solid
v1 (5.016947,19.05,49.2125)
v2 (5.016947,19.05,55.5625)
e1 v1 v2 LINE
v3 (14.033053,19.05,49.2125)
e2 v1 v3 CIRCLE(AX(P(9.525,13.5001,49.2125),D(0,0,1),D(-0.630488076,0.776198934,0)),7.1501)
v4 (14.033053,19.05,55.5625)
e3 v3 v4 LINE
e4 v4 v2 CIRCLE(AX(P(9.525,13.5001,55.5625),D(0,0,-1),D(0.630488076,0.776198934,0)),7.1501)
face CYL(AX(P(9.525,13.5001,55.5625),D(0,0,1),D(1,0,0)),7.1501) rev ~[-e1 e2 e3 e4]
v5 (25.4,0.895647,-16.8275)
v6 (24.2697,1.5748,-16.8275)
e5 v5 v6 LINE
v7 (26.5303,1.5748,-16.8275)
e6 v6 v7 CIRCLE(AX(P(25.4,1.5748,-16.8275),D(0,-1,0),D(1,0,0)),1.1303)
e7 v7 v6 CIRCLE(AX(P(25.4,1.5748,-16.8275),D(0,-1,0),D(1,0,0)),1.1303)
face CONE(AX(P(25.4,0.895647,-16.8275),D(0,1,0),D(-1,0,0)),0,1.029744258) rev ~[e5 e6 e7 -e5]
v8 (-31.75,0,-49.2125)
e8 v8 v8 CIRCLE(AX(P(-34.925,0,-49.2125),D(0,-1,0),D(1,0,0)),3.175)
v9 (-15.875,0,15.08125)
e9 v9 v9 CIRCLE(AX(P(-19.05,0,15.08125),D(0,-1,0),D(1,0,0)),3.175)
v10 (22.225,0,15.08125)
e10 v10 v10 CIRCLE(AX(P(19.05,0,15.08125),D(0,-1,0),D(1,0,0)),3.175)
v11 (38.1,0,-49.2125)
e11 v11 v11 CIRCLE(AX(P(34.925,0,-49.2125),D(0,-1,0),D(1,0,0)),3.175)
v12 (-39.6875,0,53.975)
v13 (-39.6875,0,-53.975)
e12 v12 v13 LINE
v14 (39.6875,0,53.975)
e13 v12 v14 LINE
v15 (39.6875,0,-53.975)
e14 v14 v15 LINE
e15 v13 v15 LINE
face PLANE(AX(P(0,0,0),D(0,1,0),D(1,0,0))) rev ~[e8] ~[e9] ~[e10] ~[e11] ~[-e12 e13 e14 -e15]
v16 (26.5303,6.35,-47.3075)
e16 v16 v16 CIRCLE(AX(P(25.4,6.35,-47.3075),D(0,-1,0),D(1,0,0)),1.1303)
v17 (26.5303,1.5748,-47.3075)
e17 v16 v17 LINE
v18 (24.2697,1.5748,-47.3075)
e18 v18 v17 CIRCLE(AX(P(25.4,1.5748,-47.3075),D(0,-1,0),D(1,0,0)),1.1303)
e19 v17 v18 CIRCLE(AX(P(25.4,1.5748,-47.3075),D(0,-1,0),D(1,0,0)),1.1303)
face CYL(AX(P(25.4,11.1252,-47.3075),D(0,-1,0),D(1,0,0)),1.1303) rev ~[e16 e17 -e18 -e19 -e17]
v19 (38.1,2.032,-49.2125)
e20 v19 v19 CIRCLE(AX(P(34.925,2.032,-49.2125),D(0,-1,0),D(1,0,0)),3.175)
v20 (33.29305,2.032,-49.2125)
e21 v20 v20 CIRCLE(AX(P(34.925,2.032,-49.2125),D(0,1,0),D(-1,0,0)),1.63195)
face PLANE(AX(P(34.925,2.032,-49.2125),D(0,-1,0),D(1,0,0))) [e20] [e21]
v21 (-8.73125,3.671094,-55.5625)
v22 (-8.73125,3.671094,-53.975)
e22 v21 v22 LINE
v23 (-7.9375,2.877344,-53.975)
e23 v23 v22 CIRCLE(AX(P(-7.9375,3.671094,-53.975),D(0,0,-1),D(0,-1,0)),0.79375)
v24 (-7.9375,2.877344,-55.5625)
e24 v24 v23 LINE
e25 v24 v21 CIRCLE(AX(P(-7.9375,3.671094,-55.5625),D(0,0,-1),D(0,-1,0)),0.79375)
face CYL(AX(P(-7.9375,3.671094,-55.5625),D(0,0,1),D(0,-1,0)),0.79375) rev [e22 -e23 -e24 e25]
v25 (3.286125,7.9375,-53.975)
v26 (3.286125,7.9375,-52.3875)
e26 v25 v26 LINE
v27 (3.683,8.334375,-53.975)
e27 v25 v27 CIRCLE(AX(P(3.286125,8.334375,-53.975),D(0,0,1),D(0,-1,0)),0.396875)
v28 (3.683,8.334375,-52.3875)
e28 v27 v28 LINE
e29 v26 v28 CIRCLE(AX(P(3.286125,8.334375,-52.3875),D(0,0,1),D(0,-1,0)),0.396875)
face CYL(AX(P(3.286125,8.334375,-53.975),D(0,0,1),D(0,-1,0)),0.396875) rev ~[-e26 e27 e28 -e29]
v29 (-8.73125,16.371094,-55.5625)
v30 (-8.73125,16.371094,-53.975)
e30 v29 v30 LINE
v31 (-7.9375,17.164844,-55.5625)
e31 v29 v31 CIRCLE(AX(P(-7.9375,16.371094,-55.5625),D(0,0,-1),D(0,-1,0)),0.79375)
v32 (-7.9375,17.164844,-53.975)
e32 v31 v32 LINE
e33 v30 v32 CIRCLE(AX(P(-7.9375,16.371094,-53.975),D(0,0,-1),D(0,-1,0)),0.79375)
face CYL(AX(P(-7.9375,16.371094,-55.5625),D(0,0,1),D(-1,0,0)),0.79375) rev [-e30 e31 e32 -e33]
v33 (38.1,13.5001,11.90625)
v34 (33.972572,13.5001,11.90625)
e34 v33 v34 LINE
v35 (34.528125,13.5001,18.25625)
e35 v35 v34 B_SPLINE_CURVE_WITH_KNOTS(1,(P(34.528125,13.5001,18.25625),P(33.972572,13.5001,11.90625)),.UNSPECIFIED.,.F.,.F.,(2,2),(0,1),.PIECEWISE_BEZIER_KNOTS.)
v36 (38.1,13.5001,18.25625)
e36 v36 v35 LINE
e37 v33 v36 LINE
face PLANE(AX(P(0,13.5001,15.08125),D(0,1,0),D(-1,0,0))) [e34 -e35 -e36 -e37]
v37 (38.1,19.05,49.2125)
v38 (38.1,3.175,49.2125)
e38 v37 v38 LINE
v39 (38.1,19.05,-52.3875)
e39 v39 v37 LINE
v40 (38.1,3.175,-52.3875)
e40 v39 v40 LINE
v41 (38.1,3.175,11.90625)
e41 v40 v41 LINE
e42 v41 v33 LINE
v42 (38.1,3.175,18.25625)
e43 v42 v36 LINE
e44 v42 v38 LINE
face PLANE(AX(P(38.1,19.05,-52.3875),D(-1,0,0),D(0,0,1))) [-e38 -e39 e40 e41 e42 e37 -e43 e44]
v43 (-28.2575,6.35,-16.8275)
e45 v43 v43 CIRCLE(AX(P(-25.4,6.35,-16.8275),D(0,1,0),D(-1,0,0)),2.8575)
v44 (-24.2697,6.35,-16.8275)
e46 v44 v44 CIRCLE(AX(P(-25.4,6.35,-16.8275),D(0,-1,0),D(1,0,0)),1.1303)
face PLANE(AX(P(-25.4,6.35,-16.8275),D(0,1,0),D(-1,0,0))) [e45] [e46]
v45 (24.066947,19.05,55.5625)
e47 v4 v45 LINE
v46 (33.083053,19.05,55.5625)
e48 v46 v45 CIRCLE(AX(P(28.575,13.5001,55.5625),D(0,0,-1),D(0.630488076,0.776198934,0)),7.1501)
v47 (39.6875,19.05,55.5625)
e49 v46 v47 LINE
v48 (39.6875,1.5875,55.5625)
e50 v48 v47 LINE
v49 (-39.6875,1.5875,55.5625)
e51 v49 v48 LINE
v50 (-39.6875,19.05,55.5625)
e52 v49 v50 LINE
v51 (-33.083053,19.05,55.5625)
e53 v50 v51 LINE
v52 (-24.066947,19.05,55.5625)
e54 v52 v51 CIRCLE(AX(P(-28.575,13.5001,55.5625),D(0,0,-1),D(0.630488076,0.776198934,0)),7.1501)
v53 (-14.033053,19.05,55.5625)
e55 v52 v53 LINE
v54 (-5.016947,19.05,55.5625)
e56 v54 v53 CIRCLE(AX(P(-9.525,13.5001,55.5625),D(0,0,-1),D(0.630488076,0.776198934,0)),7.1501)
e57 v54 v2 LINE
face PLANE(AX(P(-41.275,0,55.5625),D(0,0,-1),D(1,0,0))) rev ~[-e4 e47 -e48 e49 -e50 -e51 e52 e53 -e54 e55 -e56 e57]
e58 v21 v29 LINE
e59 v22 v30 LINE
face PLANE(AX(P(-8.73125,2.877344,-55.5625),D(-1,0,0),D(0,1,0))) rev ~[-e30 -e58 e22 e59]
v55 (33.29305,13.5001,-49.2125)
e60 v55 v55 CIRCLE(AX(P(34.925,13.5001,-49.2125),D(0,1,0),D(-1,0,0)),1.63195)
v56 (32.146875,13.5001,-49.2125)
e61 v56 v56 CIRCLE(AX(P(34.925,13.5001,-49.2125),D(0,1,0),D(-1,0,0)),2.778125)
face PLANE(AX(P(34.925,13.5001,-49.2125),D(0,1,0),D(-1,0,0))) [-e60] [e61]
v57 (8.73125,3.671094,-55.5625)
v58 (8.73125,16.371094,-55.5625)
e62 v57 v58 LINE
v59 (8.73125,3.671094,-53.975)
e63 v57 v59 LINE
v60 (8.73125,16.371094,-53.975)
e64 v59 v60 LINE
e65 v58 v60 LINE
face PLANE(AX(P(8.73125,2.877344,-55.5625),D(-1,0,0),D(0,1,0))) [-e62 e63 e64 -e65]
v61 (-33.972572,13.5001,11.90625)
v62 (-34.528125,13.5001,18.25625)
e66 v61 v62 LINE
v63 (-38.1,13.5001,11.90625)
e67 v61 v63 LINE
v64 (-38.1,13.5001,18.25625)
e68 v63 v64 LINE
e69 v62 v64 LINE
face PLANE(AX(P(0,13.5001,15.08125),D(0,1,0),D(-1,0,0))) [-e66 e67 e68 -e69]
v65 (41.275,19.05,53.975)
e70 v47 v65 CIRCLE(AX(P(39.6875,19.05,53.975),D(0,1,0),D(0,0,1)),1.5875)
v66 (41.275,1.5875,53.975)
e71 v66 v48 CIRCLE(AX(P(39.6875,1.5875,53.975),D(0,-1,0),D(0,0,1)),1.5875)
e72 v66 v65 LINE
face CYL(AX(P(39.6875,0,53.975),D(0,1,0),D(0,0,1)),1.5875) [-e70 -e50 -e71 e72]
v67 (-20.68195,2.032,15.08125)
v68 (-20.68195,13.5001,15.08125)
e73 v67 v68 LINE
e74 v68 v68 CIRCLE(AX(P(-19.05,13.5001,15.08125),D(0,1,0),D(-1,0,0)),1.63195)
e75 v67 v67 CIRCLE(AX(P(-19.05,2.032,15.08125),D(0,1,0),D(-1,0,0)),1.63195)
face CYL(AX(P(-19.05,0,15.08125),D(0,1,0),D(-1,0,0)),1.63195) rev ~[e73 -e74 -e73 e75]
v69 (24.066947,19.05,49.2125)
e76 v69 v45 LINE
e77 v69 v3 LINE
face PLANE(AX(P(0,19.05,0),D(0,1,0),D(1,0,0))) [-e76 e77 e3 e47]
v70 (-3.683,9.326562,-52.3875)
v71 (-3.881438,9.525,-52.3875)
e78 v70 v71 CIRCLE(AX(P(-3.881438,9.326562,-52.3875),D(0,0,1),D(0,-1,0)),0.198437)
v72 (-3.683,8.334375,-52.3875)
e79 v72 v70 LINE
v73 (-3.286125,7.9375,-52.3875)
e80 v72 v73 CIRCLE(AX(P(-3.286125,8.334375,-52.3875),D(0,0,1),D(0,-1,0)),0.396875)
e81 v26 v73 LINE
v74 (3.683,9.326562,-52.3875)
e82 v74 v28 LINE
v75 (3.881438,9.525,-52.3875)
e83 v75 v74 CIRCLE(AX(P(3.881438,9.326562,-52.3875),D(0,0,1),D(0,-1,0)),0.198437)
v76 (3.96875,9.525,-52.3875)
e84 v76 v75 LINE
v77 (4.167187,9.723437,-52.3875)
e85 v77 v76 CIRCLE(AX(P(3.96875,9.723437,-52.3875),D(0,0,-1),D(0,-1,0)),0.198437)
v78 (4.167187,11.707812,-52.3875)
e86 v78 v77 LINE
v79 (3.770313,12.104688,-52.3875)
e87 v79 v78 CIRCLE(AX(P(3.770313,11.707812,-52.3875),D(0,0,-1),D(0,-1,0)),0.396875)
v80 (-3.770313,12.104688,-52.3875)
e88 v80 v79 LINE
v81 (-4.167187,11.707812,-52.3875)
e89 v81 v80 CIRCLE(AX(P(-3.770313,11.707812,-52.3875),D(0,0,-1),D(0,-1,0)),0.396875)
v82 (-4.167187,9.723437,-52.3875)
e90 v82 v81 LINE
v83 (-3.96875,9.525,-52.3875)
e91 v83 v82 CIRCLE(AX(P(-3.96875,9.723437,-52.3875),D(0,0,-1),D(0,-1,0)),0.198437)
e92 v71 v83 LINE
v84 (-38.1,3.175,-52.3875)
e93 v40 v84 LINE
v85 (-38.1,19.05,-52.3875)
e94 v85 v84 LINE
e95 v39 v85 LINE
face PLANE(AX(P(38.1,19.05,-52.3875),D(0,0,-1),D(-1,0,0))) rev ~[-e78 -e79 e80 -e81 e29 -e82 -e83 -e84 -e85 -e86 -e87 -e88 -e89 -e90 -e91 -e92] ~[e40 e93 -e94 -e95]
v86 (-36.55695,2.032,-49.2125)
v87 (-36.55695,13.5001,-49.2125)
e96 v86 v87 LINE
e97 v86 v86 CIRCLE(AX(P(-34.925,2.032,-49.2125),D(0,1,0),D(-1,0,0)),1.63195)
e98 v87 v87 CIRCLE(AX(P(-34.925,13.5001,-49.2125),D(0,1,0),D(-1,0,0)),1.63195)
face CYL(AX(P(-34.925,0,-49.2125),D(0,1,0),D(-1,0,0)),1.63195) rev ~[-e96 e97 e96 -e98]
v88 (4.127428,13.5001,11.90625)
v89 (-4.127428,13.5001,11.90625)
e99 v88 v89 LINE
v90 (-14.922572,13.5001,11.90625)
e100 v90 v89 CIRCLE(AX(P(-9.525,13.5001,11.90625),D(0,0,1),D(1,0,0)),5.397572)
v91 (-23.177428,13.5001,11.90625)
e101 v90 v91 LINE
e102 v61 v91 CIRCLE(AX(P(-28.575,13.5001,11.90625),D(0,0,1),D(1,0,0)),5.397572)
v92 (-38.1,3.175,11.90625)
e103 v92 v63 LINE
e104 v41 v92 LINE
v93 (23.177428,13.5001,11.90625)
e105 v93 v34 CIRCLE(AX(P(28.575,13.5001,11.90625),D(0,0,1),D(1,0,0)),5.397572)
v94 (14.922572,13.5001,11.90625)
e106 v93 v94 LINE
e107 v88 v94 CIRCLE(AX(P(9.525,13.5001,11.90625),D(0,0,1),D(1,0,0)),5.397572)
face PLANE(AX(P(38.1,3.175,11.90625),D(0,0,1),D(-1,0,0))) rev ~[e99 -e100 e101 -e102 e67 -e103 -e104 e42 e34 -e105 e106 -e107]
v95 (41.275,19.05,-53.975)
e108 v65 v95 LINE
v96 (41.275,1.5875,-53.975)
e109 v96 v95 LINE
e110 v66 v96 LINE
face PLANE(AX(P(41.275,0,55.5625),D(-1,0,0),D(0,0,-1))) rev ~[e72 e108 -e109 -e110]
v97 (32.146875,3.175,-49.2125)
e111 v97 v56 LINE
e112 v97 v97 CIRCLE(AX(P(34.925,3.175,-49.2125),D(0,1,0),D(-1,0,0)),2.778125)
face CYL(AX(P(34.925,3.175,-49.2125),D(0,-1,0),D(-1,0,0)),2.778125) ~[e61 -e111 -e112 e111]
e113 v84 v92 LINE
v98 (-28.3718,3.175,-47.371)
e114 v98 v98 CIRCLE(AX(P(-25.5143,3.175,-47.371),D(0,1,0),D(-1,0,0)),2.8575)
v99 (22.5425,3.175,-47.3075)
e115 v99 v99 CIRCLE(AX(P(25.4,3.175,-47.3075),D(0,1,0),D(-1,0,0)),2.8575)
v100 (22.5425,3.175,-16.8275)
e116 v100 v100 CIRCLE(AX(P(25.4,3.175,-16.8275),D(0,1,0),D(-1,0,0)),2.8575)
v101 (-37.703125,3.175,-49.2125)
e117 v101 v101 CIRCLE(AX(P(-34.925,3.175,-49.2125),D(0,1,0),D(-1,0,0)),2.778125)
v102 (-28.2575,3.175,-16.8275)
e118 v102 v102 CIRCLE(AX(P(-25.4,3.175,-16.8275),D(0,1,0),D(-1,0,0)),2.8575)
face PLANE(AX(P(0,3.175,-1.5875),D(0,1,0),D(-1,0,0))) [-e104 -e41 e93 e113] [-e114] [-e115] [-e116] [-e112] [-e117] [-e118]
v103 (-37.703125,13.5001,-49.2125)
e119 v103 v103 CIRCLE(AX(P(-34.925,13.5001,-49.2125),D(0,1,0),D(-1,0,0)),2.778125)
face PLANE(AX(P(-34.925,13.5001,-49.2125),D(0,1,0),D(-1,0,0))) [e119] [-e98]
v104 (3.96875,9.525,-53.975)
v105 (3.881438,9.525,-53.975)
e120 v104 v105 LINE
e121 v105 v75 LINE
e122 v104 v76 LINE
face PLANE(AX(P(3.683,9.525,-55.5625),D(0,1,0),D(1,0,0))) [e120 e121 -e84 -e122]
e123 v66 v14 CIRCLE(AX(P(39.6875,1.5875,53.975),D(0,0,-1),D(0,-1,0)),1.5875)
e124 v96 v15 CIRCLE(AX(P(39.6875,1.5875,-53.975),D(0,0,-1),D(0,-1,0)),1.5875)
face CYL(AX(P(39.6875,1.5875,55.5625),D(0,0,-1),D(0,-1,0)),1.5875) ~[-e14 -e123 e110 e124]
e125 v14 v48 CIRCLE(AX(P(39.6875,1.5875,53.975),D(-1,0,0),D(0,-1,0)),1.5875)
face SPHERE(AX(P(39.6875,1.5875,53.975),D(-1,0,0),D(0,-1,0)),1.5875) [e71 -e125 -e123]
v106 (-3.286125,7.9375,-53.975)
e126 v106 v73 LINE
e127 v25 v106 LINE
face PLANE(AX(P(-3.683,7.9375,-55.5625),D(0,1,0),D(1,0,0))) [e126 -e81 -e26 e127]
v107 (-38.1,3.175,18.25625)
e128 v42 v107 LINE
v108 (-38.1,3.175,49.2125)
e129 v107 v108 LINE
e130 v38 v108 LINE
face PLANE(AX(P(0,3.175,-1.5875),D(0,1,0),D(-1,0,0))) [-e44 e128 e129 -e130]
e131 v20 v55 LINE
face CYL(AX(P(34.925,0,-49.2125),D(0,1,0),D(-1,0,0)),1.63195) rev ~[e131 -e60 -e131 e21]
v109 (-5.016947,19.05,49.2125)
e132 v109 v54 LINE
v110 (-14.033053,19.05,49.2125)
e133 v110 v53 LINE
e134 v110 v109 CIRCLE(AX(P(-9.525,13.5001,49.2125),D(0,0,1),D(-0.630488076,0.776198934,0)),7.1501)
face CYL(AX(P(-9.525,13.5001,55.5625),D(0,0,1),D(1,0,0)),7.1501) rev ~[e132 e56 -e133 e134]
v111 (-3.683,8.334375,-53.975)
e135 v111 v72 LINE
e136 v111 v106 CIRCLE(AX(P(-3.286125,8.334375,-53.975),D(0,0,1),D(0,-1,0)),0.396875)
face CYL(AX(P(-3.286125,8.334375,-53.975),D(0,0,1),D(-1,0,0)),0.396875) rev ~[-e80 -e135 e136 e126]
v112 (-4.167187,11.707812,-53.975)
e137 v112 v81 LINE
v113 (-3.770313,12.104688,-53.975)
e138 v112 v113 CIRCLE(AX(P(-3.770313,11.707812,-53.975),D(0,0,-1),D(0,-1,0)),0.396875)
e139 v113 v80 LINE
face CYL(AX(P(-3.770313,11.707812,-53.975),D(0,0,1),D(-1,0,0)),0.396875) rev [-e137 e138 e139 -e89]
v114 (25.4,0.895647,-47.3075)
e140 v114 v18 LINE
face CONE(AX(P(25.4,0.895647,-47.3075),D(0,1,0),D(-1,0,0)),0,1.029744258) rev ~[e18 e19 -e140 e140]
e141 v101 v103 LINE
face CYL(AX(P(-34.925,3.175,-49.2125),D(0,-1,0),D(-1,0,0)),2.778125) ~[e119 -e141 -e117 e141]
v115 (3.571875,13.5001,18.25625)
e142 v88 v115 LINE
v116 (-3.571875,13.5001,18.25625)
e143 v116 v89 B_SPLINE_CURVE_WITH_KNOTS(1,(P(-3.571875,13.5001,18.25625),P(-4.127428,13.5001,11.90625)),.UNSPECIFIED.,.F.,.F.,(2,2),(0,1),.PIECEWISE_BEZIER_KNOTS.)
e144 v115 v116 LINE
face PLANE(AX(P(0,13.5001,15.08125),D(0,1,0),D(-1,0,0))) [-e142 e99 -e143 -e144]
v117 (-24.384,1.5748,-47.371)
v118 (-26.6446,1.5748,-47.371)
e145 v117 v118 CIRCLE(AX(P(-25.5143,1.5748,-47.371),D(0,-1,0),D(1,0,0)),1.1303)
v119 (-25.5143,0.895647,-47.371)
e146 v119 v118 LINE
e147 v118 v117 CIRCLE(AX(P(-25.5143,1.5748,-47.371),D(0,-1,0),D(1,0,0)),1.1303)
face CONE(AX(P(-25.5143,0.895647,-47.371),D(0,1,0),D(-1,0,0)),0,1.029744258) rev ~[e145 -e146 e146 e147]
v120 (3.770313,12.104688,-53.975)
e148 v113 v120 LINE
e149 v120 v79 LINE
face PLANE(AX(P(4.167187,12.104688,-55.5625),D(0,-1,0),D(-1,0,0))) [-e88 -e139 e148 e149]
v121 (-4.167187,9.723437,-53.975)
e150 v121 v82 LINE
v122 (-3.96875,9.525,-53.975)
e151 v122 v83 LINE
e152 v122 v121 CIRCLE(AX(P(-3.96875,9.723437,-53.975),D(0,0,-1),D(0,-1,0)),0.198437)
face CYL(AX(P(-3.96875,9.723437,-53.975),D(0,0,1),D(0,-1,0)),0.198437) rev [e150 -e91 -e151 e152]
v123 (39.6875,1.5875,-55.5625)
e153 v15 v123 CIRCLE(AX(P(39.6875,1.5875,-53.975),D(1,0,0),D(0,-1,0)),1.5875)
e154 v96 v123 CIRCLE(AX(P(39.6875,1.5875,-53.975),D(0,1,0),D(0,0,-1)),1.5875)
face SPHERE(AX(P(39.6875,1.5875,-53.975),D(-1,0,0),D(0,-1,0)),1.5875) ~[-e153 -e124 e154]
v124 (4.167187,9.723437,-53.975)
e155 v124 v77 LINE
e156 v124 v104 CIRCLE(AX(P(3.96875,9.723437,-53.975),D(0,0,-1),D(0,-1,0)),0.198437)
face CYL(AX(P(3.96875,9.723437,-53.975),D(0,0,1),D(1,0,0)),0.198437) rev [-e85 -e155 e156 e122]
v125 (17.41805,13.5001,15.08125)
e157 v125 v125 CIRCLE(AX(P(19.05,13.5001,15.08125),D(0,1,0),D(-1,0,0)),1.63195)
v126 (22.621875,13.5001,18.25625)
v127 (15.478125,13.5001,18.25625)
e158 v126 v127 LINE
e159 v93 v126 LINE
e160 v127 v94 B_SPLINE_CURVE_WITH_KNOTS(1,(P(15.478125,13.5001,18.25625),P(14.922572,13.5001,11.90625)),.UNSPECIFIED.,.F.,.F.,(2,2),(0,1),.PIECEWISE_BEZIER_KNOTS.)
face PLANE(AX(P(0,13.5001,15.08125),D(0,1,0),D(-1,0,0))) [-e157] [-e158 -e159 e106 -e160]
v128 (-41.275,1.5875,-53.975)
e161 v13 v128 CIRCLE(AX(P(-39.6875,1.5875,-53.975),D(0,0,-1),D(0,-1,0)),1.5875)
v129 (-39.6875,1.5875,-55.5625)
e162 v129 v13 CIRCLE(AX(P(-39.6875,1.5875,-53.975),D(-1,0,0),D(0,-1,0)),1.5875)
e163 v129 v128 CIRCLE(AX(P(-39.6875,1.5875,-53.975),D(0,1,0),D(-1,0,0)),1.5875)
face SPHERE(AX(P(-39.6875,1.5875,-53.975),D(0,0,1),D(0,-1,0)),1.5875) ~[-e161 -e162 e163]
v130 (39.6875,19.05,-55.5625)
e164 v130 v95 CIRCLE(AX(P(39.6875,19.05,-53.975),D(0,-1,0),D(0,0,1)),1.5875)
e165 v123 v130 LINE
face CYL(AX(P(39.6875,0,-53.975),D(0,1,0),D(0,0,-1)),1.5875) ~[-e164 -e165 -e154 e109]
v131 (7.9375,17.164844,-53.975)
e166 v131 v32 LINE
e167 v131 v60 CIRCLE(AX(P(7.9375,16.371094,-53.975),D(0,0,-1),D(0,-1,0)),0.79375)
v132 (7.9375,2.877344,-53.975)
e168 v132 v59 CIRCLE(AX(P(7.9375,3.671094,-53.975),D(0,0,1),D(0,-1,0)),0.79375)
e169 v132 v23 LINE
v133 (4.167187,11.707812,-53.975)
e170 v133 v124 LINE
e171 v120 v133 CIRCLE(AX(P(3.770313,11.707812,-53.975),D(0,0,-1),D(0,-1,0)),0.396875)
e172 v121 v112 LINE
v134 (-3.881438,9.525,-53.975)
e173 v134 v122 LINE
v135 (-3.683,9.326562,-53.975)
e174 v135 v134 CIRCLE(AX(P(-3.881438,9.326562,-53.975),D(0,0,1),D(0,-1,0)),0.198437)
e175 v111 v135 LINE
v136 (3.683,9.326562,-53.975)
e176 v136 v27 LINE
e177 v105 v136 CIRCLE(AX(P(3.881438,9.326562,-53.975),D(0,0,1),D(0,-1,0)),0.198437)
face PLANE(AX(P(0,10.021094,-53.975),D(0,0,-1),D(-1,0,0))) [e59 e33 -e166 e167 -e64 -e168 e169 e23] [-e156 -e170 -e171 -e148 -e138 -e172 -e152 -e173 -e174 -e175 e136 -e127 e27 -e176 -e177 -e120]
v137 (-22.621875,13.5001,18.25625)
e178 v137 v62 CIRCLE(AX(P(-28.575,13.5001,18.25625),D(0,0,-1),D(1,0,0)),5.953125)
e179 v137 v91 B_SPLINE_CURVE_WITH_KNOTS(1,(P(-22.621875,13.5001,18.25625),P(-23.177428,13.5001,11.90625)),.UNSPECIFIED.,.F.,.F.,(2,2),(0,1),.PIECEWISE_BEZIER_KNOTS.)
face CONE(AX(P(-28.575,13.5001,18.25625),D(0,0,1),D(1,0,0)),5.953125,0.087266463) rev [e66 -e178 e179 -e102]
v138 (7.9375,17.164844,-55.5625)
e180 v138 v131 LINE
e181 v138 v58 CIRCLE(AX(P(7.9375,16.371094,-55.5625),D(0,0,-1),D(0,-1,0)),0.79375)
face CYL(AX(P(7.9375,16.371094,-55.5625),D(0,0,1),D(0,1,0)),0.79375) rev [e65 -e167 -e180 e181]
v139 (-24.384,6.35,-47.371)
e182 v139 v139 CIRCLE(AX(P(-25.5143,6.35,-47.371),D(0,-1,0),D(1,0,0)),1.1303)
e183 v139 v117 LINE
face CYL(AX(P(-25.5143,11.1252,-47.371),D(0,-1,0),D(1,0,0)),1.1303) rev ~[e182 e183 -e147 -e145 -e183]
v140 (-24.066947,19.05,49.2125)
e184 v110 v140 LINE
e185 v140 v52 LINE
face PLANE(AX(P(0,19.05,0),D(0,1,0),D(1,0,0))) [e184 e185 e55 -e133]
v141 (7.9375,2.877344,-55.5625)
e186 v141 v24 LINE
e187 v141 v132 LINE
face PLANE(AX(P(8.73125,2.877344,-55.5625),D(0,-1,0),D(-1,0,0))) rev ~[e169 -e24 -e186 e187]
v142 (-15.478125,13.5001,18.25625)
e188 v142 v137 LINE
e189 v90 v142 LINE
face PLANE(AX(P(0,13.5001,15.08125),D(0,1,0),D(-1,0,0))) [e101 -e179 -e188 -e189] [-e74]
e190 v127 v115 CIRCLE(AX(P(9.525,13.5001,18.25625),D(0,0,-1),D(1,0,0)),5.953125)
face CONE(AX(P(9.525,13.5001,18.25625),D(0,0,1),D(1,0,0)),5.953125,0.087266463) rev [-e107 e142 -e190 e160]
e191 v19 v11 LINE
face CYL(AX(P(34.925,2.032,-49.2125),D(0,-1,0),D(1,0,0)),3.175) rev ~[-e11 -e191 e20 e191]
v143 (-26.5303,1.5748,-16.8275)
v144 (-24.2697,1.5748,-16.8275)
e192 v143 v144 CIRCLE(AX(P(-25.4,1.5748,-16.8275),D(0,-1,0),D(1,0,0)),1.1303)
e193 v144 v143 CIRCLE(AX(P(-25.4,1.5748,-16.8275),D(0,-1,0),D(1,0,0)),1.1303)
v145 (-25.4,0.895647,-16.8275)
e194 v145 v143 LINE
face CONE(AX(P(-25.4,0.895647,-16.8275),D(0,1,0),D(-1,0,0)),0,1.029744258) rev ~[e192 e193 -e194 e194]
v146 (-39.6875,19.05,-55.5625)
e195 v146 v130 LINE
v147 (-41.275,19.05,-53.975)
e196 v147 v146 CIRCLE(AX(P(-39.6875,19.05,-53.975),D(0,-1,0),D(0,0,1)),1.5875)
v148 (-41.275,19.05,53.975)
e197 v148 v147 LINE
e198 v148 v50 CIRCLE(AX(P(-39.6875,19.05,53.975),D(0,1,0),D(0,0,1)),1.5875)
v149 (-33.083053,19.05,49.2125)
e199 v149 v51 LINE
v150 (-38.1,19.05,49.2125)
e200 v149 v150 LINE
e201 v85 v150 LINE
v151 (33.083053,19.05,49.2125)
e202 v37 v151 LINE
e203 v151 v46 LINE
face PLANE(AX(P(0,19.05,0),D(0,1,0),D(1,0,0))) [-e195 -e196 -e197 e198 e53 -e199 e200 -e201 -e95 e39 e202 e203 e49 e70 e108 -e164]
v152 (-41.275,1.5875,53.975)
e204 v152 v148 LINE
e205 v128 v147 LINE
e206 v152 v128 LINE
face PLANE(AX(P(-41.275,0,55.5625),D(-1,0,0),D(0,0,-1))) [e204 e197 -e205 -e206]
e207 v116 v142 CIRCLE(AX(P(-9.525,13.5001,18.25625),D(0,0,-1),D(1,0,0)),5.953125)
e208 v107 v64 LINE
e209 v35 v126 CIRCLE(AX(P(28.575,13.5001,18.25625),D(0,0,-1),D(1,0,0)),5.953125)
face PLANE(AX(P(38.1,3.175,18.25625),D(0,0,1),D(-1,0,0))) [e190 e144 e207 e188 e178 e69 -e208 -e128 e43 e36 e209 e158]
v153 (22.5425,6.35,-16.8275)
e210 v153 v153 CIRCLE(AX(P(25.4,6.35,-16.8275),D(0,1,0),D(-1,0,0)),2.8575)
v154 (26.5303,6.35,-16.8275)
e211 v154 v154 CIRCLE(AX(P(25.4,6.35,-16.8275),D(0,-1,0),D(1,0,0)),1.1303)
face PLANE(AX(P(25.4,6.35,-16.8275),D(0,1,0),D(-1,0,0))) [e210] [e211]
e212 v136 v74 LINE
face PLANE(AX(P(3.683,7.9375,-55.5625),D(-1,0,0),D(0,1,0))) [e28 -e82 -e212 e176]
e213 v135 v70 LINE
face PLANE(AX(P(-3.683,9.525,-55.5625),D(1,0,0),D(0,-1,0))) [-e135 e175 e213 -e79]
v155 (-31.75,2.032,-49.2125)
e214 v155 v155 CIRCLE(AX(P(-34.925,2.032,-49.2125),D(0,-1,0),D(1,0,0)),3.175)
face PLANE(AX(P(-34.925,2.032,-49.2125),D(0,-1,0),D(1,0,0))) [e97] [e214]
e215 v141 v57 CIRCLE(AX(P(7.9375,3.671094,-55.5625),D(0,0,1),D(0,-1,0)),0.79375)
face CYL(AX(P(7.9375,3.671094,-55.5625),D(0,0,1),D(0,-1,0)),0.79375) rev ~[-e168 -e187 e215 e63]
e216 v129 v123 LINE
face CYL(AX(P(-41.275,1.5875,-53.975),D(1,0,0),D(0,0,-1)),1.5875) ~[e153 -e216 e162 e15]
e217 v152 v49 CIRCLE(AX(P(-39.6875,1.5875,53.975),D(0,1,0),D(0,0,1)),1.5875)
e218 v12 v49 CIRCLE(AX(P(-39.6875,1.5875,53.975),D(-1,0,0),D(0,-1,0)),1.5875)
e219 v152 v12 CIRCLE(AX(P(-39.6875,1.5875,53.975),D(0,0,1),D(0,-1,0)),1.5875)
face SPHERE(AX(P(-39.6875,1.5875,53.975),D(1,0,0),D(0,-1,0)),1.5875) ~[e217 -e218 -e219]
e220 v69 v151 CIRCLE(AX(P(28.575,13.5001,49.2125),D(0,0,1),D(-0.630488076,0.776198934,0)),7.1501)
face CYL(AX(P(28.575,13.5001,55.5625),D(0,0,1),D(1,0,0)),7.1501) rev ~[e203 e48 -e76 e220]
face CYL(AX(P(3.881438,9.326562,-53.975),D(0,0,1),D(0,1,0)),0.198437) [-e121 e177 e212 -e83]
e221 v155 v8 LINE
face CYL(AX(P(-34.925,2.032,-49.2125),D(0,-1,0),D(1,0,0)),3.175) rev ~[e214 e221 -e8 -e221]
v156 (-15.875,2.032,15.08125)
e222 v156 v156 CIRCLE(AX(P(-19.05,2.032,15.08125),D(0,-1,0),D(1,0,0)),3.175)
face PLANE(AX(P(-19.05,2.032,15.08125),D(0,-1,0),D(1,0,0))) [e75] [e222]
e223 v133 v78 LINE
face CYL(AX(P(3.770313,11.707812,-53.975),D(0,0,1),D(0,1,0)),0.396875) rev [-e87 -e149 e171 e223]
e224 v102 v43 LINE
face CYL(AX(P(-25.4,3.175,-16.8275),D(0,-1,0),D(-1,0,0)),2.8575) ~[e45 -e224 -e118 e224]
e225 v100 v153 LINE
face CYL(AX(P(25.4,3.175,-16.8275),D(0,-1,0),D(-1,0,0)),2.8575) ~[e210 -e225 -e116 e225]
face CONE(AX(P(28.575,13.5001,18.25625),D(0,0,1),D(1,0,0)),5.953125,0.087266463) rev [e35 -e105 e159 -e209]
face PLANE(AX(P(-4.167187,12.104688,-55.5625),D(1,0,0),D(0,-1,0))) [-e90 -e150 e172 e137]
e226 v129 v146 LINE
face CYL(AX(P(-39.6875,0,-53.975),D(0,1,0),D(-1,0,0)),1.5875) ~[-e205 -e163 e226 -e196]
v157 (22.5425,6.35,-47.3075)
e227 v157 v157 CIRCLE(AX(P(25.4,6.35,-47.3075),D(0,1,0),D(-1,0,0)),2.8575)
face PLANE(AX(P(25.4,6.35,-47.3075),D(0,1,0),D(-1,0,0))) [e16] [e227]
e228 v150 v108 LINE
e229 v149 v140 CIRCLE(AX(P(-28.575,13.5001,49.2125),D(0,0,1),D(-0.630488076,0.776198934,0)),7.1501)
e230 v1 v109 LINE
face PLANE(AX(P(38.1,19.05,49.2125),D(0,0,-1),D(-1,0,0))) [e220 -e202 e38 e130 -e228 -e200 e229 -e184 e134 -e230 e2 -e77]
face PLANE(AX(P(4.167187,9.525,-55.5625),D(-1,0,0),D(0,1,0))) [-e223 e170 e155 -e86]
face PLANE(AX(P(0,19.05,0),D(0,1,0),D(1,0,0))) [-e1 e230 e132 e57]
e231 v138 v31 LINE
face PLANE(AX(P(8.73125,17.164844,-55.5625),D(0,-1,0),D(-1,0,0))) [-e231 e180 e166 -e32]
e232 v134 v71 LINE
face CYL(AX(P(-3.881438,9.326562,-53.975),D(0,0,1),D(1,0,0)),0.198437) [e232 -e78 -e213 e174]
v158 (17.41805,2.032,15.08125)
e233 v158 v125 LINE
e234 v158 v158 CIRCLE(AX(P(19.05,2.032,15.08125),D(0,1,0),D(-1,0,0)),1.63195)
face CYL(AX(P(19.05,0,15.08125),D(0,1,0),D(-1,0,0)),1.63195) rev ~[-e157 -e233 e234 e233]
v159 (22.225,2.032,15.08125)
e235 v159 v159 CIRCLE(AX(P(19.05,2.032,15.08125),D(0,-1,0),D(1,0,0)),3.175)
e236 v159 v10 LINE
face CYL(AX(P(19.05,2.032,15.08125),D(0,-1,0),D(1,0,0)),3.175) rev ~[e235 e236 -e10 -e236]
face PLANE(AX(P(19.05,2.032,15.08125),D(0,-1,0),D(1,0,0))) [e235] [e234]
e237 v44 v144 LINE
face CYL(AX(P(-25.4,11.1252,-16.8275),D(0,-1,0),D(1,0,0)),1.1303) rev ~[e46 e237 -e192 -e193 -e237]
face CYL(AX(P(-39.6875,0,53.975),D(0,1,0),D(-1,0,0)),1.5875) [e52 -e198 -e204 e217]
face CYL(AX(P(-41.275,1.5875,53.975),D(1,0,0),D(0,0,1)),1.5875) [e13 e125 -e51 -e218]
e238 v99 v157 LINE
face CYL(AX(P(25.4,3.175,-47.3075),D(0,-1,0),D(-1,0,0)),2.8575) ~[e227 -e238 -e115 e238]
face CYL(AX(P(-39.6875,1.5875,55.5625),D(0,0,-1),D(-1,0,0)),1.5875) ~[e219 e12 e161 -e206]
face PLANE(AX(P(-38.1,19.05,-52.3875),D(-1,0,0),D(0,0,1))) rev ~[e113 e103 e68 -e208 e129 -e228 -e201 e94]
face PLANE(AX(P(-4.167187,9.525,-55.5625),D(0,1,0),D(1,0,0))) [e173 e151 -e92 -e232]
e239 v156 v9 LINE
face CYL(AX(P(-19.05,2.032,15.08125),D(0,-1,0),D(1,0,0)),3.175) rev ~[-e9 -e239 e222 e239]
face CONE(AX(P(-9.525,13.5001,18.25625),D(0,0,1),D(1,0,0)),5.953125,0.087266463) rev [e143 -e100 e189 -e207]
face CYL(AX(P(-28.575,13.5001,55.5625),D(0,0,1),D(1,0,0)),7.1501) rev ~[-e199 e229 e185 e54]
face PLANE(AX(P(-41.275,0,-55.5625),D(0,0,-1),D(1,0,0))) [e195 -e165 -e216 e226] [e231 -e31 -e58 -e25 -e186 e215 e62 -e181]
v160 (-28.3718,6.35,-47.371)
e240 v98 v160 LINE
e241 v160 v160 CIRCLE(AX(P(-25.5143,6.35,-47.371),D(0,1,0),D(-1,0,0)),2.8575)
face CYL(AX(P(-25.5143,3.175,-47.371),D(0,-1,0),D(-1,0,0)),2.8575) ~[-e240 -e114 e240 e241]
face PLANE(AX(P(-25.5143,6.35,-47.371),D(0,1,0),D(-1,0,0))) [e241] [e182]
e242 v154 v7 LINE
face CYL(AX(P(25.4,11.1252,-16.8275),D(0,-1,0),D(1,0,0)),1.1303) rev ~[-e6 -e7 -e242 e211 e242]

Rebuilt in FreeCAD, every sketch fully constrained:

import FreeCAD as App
import Part
import Sketcher
Q = App.Units.Quantity


def edges_at(feature, points):
    """Names of the edges that pass closest to the given points."""
    edges = feature.Shape.Edges
    near = lambda p: min(range(len(edges)), key=lambda i: edges[i].distToShape(Part.Vertex(*p))[0])
    return sorted({f"Edge{near(p) + 1}" for p in points})

doc = App.newDocument("Part")
body = doc.addObject("PartDesign::Body", "Body")

# Sketch on XZ plane
sketch1 = doc.addObject("Sketcher::SketchObject", "Sketch")
body.addObject(sketch1)
sketch1.AttachmentSupport = (doc.XZ_Plane, [""])
sketch1.MapMode = "FlatFace"
sketch1.addGeometry([
    Part.LineSegment(App.Vector(-41, -56, 0), App.Vector(-41, 56, 0)),
    Part.LineSegment(App.Vector(-41, 56, 0), App.Vector(41, 56, 0)),
    Part.LineSegment(App.Vector(41, 56, 0), App.Vector(41, -56, 0)),
    Part.LineSegment(App.Vector(41, -56, 0), App.Vector(-41, -56, 0)),
], False)
sketch1.addConstraint([
    Sketcher.Constraint("Coincident", 0, 2, 1, 1),
    Sketcher.Constraint("Coincident", 1, 2, 2, 1),
    Sketcher.Constraint("Coincident", 2, 2, 3, 1),
    Sketcher.Constraint("Coincident", 3, 2, 0, 1),
    Sketcher.Constraint("Vertical", 0),
    Sketcher.Constraint("Horizontal", 1),
    Sketcher.Constraint("Vertical", 2),
    Sketcher.Constraint("Horizontal", 3),
    Sketcher.Constraint("Symmetric", 0, 2, 2, 2, -1, 1),
    Sketcher.Constraint("DistanceX", 1, 1, 1, 2, Q("3.25 in")),
    Sketcher.Constraint("DistanceY", 0, 1, 0, 2, Q("4.375 in")),
])
pad1 = doc.addObject("PartDesign::Pad", "Pad")
body.addObject(pad1)
pad1.Profile = sketch1
pad1.Length = Q("0.75 in")
pad1.Reversed = True

# Sketch on XZ plane
sketch2 = doc.addObject("Sketcher::SketchObject", "Sketch001")
body.addObject(sketch2)
sketch2.AttachmentSupport = (doc.XZ_Plane, [""])
sketch2.MapMode = "FlatFace"
sketch2.AttachmentOffset = App.Placement(App.Vector(0, 0, -0.75 * 25.4), App.Rotation())
sketch2.addGeometry([
    Part.LineSegment(App.Vector(38, 49, 0), App.Vector(38, -52, 0)),
    Part.LineSegment(App.Vector(38, -52, 0), App.Vector(-38, -52, 0)),
    Part.LineSegment(App.Vector(-38, -52, 0), App.Vector(-38, 49, 0)),
    Part.LineSegment(App.Vector(-38, 49, 0), App.Vector(38, 49, 0)),
], False)
sketch2.addConstraint([
    Sketcher.Constraint("Coincident", 0, 2, 1, 1),
    Sketcher.Constraint("Coincident", 1, 2, 2, 1),
    Sketcher.Constraint("Coincident", 2, 2, 3, 1),
    Sketcher.Constraint("Coincident", 3, 2, 0, 1),
    Sketcher.Constraint("Vertical", 0),
    Sketcher.Constraint("Horizontal", 1),
    Sketcher.Constraint("Vertical", 2),
    Sketcher.Constraint("Horizontal", 3),
    Sketcher.Constraint("DistanceX", 1, 2, 1, 1, Q("3 in")),
    Sketcher.Constraint("DistanceY", 0, 2, 0, 1, Q("4 in")),
    Sketcher.Constraint("DistanceX", -1, 1, 0, 2, Q("1.5 in")),
    Sketcher.Constraint("DistanceY", 0, 2, -1, 1, Q("2.0625 in")),
])
pocket1 = doc.addObject("PartDesign::Pocket", "Pocket")
body.addObject(pocket1)
pocket1.Profile = sketch2
pocket1.Length = Q("0.625 in")
pocket1.Reversed = True

# Sketch on XY plane
sketch3 = doc.addObject("Sketcher::SketchObject", "Sketch002")
body.addObject(sketch3)
sketch3.AttachmentSupport = (doc.XY_Plane, [""])
sketch3.MapMode = "FlatFace"
sketch3.AttachmentOffset = App.Placement(App.Vector(0, 0, 2.1875 * 25.4), App.Rotation())
sketch3.addGeometry(Part.Circle(App.Vector(-29, 14, 0), App.Vector(0, 0, 1), 7), False)
sketch3.addConstraint([
    Sketcher.Constraint("Diameter", 0, Q("0.563 in")),
    Sketcher.Constraint("DistanceX", 0, 3, -1, 1, Q("1.125 in")),
    Sketcher.Constraint("DistanceY", -1, 1, 0, 3, Q("0.5315 in")),
])
pocket2 = doc.addObject("PartDesign::Pocket", "Pocket001")
body.addObject(pocket2)
pocket2.Profile = sketch3
pocket2.Type = "UpToFirst"

# Sketch on XY plane
sketch4 = doc.addObject("Sketcher::SketchObject", "Sketch003")
body.addObject(sketch4)
sketch4.AttachmentSupport = (doc.XY_Plane, [""])
sketch4.MapMode = "FlatFace"
sketch4.AttachmentOffset = App.Placement(App.Vector(0, 0, 2.1875 * 25.4), App.Rotation())
sketch4.addGeometry(Part.Circle(App.Vector(-10, 14, 0), App.Vector(0, 0, 1), 7), False)
sketch4.addConstraint([
    Sketcher.Constraint("Diameter", 0, Q("0.563 in")),
    Sketcher.Constraint("DistanceX", 0, 3, -1, 1, Q("0.375 in")),
    Sketcher.Constraint("DistanceY", -1, 1, 0, 3, Q("0.5315 in")),
])
pocket3 = doc.addObject("PartDesign::Pocket", "Pocket002")
body.addObject(pocket3)
pocket3.Profile = sketch4
pocket3.Type = "UpToFirst"

# Sketch on XY plane
sketch5 = doc.addObject("Sketcher::SketchObject", "Sketch004")
body.addObject(sketch5)
sketch5.AttachmentSupport = (doc.XY_Plane, [""])
sketch5.MapMode = "FlatFace"
sketch5.AttachmentOffset = App.Placement(App.Vector(0, 0, 2.1875 * 25.4), App.Rotation())
sketch5.addGeometry(Part.Circle(App.Vector(10, 14, 0), App.Vector(0, 0, 1), 7), False)
sketch5.addConstraint([
    Sketcher.Constraint("Diameter", 0, Q("0.563 in")),
    Sketcher.Constraint("DistanceX", -1, 1, 0, 3, Q("0.375 in")),
    Sketcher.Constraint("DistanceY", -1, 1, 0, 3, Q("0.5315 in")),
])
pocket4 = doc.addObject("PartDesign::Pocket", "Pocket003")
body.addObject(pocket4)
pocket4.Profile = sketch5
pocket4.Type = "UpToFirst"

# Sketch on XY plane
sketch6 = doc.addObject("Sketcher::SketchObject", "Sketch005")
body.addObject(sketch6)
sketch6.AttachmentSupport = (doc.XY_Plane, [""])
sketch6.MapMode = "FlatFace"
sketch6.AttachmentOffset = App.Placement(App.Vector(0, 0, 2.1875 * 25.4), App.Rotation())
sketch6.addGeometry(Part.Circle(App.Vector(29, 14, 0), App.Vector(0, 0, 1), 7), False)
sketch6.addConstraint([
    Sketcher.Constraint("Diameter", 0, Q("0.563 in")),
    Sketcher.Constraint("DistanceX", -1, 1, 0, 3, Q("1.125 in")),
    Sketcher.Constraint("DistanceY", -1, 1, 0, 3, Q("0.5315 in")),
])
pocket5 = doc.addObject("PartDesign::Pocket", "Pocket004")
body.addObject(pocket5)
pocket5.Profile = sketch6
pocket5.Type = "UpToFirst"

# Sketch on XZ plane
sketch7 = doc.addObject("Sketcher::SketchObject", "Sketch006")
body.addObject(sketch7)
sketch7.AttachmentSupport = (doc.XZ_Plane, [""])
sketch7.MapMode = "FlatFace"
sketch7.AttachmentOffset = App.Placement(App.Vector(0, 0, -0.125 * 25.4), App.Rotation())
sketch7.addGeometry([
    Part.Circle(App.Vector(-34.9, -49.2, 0), App.Vector(0, 0, 1), 2.8),  # 0
    Part.Circle(App.Vector(34.9, -49.2, 0), App.Vector(0, 0, 1), 2.8),  # 1
    Part.LineSegment(App.Vector(38.1, 18.3, 0), App.Vector(38.1, 11.9, 0)),  # 2
    Part.LineSegment(App.Vector(38.1, 11.9, 0), App.Vector(-38.1, 11.9, 0)),  # 3
    Part.LineSegment(App.Vector(-38.1, 11.9, 0), App.Vector(-38.1, 18.3, 0)),  # 4
    Part.LineSegment(App.Vector(-38.1, 18.3, 0), App.Vector(38.1, 18.3, 0)),  # 5
], False)
sketch7.addConstraint([
    Sketcher.Constraint("Coincident", 2, 2, 3, 1),
    Sketcher.Constraint("Coincident", 3, 2, 4, 1),
    Sketcher.Constraint("Coincident", 4, 2, 5, 1),
    Sketcher.Constraint("Coincident", 5, 2, 2, 1),
    Sketcher.Constraint("Vertical", 2),
    Sketcher.Constraint("Horizontal", 3),
    Sketcher.Constraint("Vertical", 4),
    Sketcher.Constraint("Horizontal", 5),
    Sketcher.Constraint("Equal", 0, 1),
    Sketcher.Constraint("Symmetric", 0, 3, 1, 3, -2),
    Sketcher.Constraint("DistanceX", 3, 2, 3, 1, Q("3 in")),
    Sketcher.Constraint("Diameter", 0, Q("0.21875 in")),
    Sketcher.Constraint("DistanceY", 2, 2, 2, 1, Q("0.25 in")),
    Sketcher.Constraint("DistanceX", -1, 1, 2, 2, Q("1.5 in")),
    Sketcher.Constraint("DistanceX", 0, 3, 1, 3, Q("2.75 in")),
    Sketcher.Constraint("DistanceY", 0, 3, -1, 1, Q("1.9375 in")),
    Sketcher.Constraint("DistanceY", -1, 1, 2, 2, Q("0.46875 in")),
])
pad2 = doc.addObject("PartDesign::Pad", "Pad001")
body.addObject(pad2)
pad2.Profile = sketch7
pad2.Length = Q("0.4065 in")
pad2.Reversed = True

# Sketch on XY plane
sketch8 = doc.addObject("Sketcher::SketchObject", "Sketch007")
body.addObject(sketch8)
sketch8.AttachmentSupport = (doc.XY_Plane, [""])
sketch8.MapMode = "FlatFace"
sketch8.AttachmentOffset = App.Placement(App.Vector(0, 0, 0.71875 * 25.4), App.Rotation())
sketch8.addGeometry([
    Part.Circle(App.Vector(-29, 14, 0), App.Vector(0, 0, 1), 6),
    Part.Circle(App.Vector(-10, 14, 0), App.Vector(0, 0, 1), 6),
    Part.Circle(App.Vector(10, 14, 0), App.Vector(0, 0, 1), 6),
    Part.Circle(App.Vector(29, 14, 0), App.Vector(0, 0, 1), 6),
], False)
sketch8.addConstraint([
    Sketcher.Constraint("Equal", 0, 1),
    Sketcher.Constraint("Equal", 1, 2),
    Sketcher.Constraint("Equal", 2, 3),
    Sketcher.Constraint("Symmetric", 1, 3, 2, 3, -2),
    Sketcher.Constraint("Symmetric", 0, 3, 3, 3, -2),
    Sketcher.Constraint("Horizontal", 0, 3, 1, 3),
    Sketcher.Constraint("Diameter", 0, Q("0.46875 in")),
    Sketcher.Constraint("DistanceX", 0, 3, 2, 3, Q("1.5 in")),
    Sketcher.Constraint("DistanceX", 0, 3, 1, 3, Q("0.75 in")),
    Sketcher.Constraint("DistanceY", -1, 1, 0, 3, Q("0.5315 in")),
])
pocket6 = doc.addObject("PartDesign::Pocket", "Pocket005")
body.addObject(pocket6)
pocket6.Profile = sketch8
pocket6.Length = Q("0.25 in")
pocket6.TaperAngle = -5

# Sketch on XY plane
sketch9 = doc.addObject("Sketcher::SketchObject", "Sketch008")
body.addObject(sketch9)
sketch9.AttachmentSupport = (doc.XY_Plane, [""])
sketch9.MapMode = "FlatFace"
sketch9.AttachmentOffset = App.Placement(App.Vector(0, 0, -2.1875 * 25.4), App.Rotation())
sketch9.addGeometry([
    Part.LineSegment(App.Vector(3.68, 9.53, 0), App.Vector(3.68, 7.94, 0)),  # 0
    Part.LineSegment(App.Vector(3.68, 7.94, 0), App.Vector(-3.68, 7.94, 0)),  # 1
    Part.LineSegment(App.Vector(-3.68, 7.94, 0), App.Vector(-3.68, 9.53, 0)),  # 2
    Part.LineSegment(App.Vector(-3.68, 9.53, 0), App.Vector(-4.17, 9.53, 0)),  # 3
    Part.LineSegment(App.Vector(-4.17, 9.53, 0), App.Vector(-4.17, 12.1, 0)),  # 4
    Part.LineSegment(App.Vector(-4.17, 12.1, 0), App.Vector(4.17, 12.1, 0)),  # 5
    Part.LineSegment(App.Vector(4.17, 12.1, 0), App.Vector(4.17, 9.53, 0)),  # 6
    Part.LineSegment(App.Vector(4.17, 9.53, 0), App.Vector(3.68, 9.53, 0)),  # 7
], False)
sketch9.addConstraint([
    Sketcher.Constraint("Coincident", 0, 2, 1, 1),
    Sketcher.Constraint("Coincident", 1, 2, 2, 1),
    Sketcher.Constraint("Coincident", 2, 2, 3, 1),
    Sketcher.Constraint("Coincident", 3, 2, 4, 1),
    Sketcher.Constraint("Coincident", 4, 2, 5, 1),
    Sketcher.Constraint("Coincident", 5, 2, 6, 1),
    Sketcher.Constraint("Coincident", 6, 2, 7, 1),
    Sketcher.Constraint("Coincident", 7, 2, 0, 1),
    Sketcher.Constraint("Vertical", 0),
    Sketcher.Constraint("Horizontal", 1),
    Sketcher.Constraint("Vertical", 2),
    Sketcher.Constraint("Horizontal", 3),
    Sketcher.Constraint("Vertical", 4),
    Sketcher.Constraint("Horizontal", 5),
    Sketcher.Constraint("Vertical", 6),
    Sketcher.Constraint("Horizontal", 7),
    Sketcher.Constraint("Symmetric", 3, 2, 6, 2, -2),
    Sketcher.Constraint("Equal", 3, 7),
    Sketcher.Constraint("DistanceX", 1, 2, 1, 1, Q("0.29 in")),
    Sketcher.Constraint("DistanceX", 5, 1, 5, 2, Q("0.328125 in")),
    Sketcher.Constraint("DistanceY", 0, 2, 0, 1, Q("0.0625 in")),
    Sketcher.Constraint("DistanceY", -1, 1, 0, 2, Q("0.3125 in")),
    Sketcher.Constraint("DistanceY", 4, 1, 4, 2, Q("2.579688 mm")),
])
pocket7 = doc.addObject("PartDesign::Pocket", "Pocket006")
body.addObject(pocket7)
pocket7.Profile = sketch9
pocket7.Type = "UpToFirst"
pocket7.Reversed = True
doc.recompute()

fillet = doc.addObject("PartDesign::Fillet", "Fillet")
body.addObject(fillet)
fillet.Base = (pocket7, edges_at(pocket7, [
    (0, 0, 55.562),
    (-41.275, 0, 0),
    (0, 0, -55.562),
    (41.275, 0, 0),
    (41.275, 9.525, 55.562),
    (-41.275, 9.525, 55.562),
    (-41.275, 9.525, -55.562),
    (41.275, 9.525, -55.562),
]))
fillet.Radius = Q("0.0625 in")

# Sketch on XZ plane
sketch10 = doc.addObject("Sketcher::SketchObject", "Sketch009")
body.addObject(sketch10)
sketch10.AttachmentSupport = (doc.XZ_Plane, [""])
sketch10.MapMode = "FlatFace"
sketch10.AttachmentOffset = App.Placement(App.Vector(0, 0, -0.125 * 25.4), App.Rotation())
sketch10.addGeometry([
    Part.Circle(App.Vector(-25.5, -47.4, 0), App.Vector(0, 0, 1), 2.9),
    Part.Circle(App.Vector(25.4, -47.3, 0), App.Vector(0, 0, 1), 2.9),
    Part.Circle(App.Vector(-25.4, -16.8, 0), App.Vector(0, 0, 1), 2.9),
    Part.Circle(App.Vector(25.4, -16.8, 0), App.Vector(0, 0, 1), 2.9),
], False)
sketch10.addConstraint([
    Sketcher.Constraint("Equal", 0, 1),
    Sketcher.Constraint("Equal", 1, 2),
    Sketcher.Constraint("Equal", 2, 3),
    Sketcher.Constraint("Symmetric", 2, 3, 3, 3, -2),
    Sketcher.Constraint("Vertical", 1, 3, 3, 3),
    Sketcher.Constraint("Diameter", 0, Q("0.225 in")),
    Sketcher.Constraint("DistanceX", -1, 1, 1, 3, Q("1 in")),
    Sketcher.Constraint("DistanceY", 1, 3, 2, 3, Q("1.2 in")),
    Sketcher.Constraint("DistanceY", 0, 3, -1, 1, Q("1.865 in")),
    Sketcher.Constraint("DistanceX", 0, 3, -1, 1, Q("1.0045 in")),
    Sketcher.Constraint("DistanceY", 1, 3, -1, 1, Q("1.8625 in")),
])
pad3 = doc.addObject("PartDesign::Pad", "Pad002")
body.addObject(pad3)
pad3.Profile = sketch10
pad3.Length = Q("0.125 in")
pad3.Reversed = True

# Sketch on XZ plane
sketch11 = doc.addObject("Sketcher::SketchObject", "Sketch010")
body.addObject(sketch11)
sketch11.AttachmentSupport = (doc.XZ_Plane, [""])
sketch11.MapMode = "FlatFace"
sketch11.addGeometry([
    Part.Circle(App.Vector(-19.1, 15.1, 0), App.Vector(0, 0, 1), 1.6),
    Part.Circle(App.Vector(19.1, 15.1, 0), App.Vector(0, 0, 1), 1.6),
    Part.Circle(App.Vector(-34.9, -49.2, 0), App.Vector(0, 0, 1), 1.6),
    Part.Circle(App.Vector(34.9, -49.2, 0), App.Vector(0, 0, 1), 1.6),
], False)
sketch11.addConstraint([
    Sketcher.Constraint("Equal", 0, 1),
    Sketcher.Constraint("Equal", 1, 2),
    Sketcher.Constraint("Equal", 2, 3),
    Sketcher.Constraint("Symmetric", 0, 3, 1, 3, -2),
    Sketcher.Constraint("Symmetric", 2, 3, 3, 3, -2),
    Sketcher.Constraint("Diameter", 0, Q("0.1285 in")),
    Sketcher.Constraint("DistanceX", 0, 3, 1, 3, Q("1.5 in")),
    Sketcher.Constraint("DistanceX", 2, 3, 3, 3, Q("2.75 in")),
    Sketcher.Constraint("DistanceY", -1, 1, 0, 3, Q("0.59375 in")),
    Sketcher.Constraint("DistanceY", 2, 3, -1, 1, Q("1.9375 in")),
])
doc.recompute()
hole = doc.addObject("PartDesign::Hole", "Hole")
body.addObject(hole)
hole.Profile = sketch11
hole.ThreadType = "None"
hole.Diameter = Q("0.1285 in")
hole.DepthType = "ThroughAll"
hole.HoleCutType = "Counterbore"
hole.HoleCutDiameter = Q("0.25 in")
hole.HoleCutDepth = Q("0.08 in")

# Sketch on XZ plane
sketch12 = doc.addObject("Sketcher::SketchObject", "Sketch011")
body.addObject(sketch12)
sketch12.AttachmentSupport = (doc.XZ_Plane, [""])
sketch12.MapMode = "FlatFace"
sketch12.AttachmentOffset = App.Placement(App.Vector(0, 0, -0.25 * 25.4), App.Rotation())
sketch12.addGeometry([
    Part.Circle(App.Vector(-25.5, -47.4, 0), App.Vector(0, 0, 1), 1.1),
    Part.Circle(App.Vector(-25.4, -16.8, 0), App.Vector(0, 0, 1), 1.1),
    Part.Circle(App.Vector(25.4, -16.8, 0), App.Vector(0, 0, 1), 1.1),
    Part.Circle(App.Vector(25.4, -47.3, 0), App.Vector(0, 0, 1), 1.1),
], False)
sketch12.addConstraint([
    Sketcher.Constraint("Equal", 0, 1),
    Sketcher.Constraint("Equal", 1, 2),
    Sketcher.Constraint("Equal", 2, 3),
    Sketcher.Constraint("Symmetric", 1, 3, 2, 3, -2),
    Sketcher.Constraint("Vertical", 2, 3, 3, 3),
    Sketcher.Constraint("Diameter", 0, Q("0.089 in")),
    Sketcher.Constraint("DistanceX", 1, 3, -1, 1, Q("1 in")),
    Sketcher.Constraint("DistanceY", 3, 3, 2, 3, Q("1.2 in")),
    Sketcher.Constraint("DistanceY", 0, 3, -1, 1, Q("1.865 in")),
    Sketcher.Constraint("DistanceX", 0, 3, -1, 1, Q("1.0045 in")),
    Sketcher.Constraint("DistanceY", 1, 3, -1, 1, Q("0.6625 in")),
])
doc.recompute()
hole2 = doc.addObject("PartDesign::Hole", "Hole001")
body.addObject(hole2)
hole2.Profile = sketch12
hole2.ThreadType = "None"
hole2.Diameter = Q("0.089 in")
hole2.DepthType = "Dimension"
hole2.Depth = Q("0.188 in")
hole2.DrillPoint = "Angled"
hole2.DrillPointAngle = 118
hole2.Reversed = True

# Sketch on XY plane
sketch13 = doc.addObject("Sketcher::SketchObject", "Sketch012")
body.addObject(sketch13)
sketch13.AttachmentSupport = (doc.XY_Plane, [""])
sketch13.MapMode = "FlatFace"
sketch13.AttachmentOffset = App.Placement(App.Vector(0, 0, -2.1875 * 25.4), App.Rotation())
sketch13.addGeometry([
    Part.LineSegment(App.Vector(9, 17, 0), App.Vector(9, 3, 0)),
    Part.LineSegment(App.Vector(9, 3, 0), App.Vector(-9, 3, 0)),
    Part.LineSegment(App.Vector(-9, 3, 0), App.Vector(-9, 17, 0)),
    Part.LineSegment(App.Vector(-9, 17, 0), App.Vector(9, 17, 0)),
], False)
sketch13.addConstraint([
    Sketcher.Constraint("Coincident", 0, 2, 1, 1),
    Sketcher.Constraint("Coincident", 1, 2, 2, 1),
    Sketcher.Constraint("Coincident", 2, 2, 3, 1),
    Sketcher.Constraint("Coincident", 3, 2, 0, 1),
    Sketcher.Constraint("Vertical", 0),
    Sketcher.Constraint("Horizontal", 1),
    Sketcher.Constraint("Vertical", 2),
    Sketcher.Constraint("Horizontal", 3),
    Sketcher.Constraint("DistanceX", 1, 2, 1, 1, Q("0.6875 in")),
    Sketcher.Constraint("DistanceY", 0, 2, 0, 1, Q("0.5625 in")),
    Sketcher.Constraint("DistanceX", -1, 1, 0, 2, Q("0.34375 in")),
    Sketcher.Constraint("DistanceY", -1, 1, 0, 2, Q("2.877344 mm")),
])
pocket8 = doc.addObject("PartDesign::Pocket", "Pocket007")
body.addObject(pocket8)
pocket8.Profile = sketch13
pocket8.Length = Q("0.0625 in")
pocket8.Reversed = True
doc.recompute()

fillet2 = doc.addObject("PartDesign::Fillet", "Fillet001")
body.addObject(fillet2)
fillet2.Base = (pocket8, edges_at(pocket8, [
    (-8.731, 17.165, -54.769),
    (-8.731, 2.877, -54.769),
    (8.731, 2.877, -54.769),
    (8.731, 17.165, -54.769),
]))
fillet2.Radius = Q("0.03125 in")
doc.recompute()

fillet3 = doc.addObject("PartDesign::Fillet", "Fillet002")
body.addObject(fillet3)
fillet3.Base = (fillet2, edges_at(fillet2, [
    (3.683, 9.525, -53.181),
    (4.167, 9.525, -53.181),
    (-4.167, 9.525, -53.181),
    (-3.683, 9.525, -53.181),
]))
fillet3.Radius = 0.198437
doc.recompute()

fillet4 = doc.addObject("PartDesign::Fillet", "Fillet003")
body.addObject(fillet4)
fillet4.Base = (fillet3, edges_at(fillet3, [
    (-3.683, 7.938, -53.181),
    (3.683, 7.938, -53.181),
    (4.167, 12.105, -53.181),
    (-4.167, 12.105, -53.181),
]))
fillet4.Radius = Q("0.015625 in")

doc.recompute()
